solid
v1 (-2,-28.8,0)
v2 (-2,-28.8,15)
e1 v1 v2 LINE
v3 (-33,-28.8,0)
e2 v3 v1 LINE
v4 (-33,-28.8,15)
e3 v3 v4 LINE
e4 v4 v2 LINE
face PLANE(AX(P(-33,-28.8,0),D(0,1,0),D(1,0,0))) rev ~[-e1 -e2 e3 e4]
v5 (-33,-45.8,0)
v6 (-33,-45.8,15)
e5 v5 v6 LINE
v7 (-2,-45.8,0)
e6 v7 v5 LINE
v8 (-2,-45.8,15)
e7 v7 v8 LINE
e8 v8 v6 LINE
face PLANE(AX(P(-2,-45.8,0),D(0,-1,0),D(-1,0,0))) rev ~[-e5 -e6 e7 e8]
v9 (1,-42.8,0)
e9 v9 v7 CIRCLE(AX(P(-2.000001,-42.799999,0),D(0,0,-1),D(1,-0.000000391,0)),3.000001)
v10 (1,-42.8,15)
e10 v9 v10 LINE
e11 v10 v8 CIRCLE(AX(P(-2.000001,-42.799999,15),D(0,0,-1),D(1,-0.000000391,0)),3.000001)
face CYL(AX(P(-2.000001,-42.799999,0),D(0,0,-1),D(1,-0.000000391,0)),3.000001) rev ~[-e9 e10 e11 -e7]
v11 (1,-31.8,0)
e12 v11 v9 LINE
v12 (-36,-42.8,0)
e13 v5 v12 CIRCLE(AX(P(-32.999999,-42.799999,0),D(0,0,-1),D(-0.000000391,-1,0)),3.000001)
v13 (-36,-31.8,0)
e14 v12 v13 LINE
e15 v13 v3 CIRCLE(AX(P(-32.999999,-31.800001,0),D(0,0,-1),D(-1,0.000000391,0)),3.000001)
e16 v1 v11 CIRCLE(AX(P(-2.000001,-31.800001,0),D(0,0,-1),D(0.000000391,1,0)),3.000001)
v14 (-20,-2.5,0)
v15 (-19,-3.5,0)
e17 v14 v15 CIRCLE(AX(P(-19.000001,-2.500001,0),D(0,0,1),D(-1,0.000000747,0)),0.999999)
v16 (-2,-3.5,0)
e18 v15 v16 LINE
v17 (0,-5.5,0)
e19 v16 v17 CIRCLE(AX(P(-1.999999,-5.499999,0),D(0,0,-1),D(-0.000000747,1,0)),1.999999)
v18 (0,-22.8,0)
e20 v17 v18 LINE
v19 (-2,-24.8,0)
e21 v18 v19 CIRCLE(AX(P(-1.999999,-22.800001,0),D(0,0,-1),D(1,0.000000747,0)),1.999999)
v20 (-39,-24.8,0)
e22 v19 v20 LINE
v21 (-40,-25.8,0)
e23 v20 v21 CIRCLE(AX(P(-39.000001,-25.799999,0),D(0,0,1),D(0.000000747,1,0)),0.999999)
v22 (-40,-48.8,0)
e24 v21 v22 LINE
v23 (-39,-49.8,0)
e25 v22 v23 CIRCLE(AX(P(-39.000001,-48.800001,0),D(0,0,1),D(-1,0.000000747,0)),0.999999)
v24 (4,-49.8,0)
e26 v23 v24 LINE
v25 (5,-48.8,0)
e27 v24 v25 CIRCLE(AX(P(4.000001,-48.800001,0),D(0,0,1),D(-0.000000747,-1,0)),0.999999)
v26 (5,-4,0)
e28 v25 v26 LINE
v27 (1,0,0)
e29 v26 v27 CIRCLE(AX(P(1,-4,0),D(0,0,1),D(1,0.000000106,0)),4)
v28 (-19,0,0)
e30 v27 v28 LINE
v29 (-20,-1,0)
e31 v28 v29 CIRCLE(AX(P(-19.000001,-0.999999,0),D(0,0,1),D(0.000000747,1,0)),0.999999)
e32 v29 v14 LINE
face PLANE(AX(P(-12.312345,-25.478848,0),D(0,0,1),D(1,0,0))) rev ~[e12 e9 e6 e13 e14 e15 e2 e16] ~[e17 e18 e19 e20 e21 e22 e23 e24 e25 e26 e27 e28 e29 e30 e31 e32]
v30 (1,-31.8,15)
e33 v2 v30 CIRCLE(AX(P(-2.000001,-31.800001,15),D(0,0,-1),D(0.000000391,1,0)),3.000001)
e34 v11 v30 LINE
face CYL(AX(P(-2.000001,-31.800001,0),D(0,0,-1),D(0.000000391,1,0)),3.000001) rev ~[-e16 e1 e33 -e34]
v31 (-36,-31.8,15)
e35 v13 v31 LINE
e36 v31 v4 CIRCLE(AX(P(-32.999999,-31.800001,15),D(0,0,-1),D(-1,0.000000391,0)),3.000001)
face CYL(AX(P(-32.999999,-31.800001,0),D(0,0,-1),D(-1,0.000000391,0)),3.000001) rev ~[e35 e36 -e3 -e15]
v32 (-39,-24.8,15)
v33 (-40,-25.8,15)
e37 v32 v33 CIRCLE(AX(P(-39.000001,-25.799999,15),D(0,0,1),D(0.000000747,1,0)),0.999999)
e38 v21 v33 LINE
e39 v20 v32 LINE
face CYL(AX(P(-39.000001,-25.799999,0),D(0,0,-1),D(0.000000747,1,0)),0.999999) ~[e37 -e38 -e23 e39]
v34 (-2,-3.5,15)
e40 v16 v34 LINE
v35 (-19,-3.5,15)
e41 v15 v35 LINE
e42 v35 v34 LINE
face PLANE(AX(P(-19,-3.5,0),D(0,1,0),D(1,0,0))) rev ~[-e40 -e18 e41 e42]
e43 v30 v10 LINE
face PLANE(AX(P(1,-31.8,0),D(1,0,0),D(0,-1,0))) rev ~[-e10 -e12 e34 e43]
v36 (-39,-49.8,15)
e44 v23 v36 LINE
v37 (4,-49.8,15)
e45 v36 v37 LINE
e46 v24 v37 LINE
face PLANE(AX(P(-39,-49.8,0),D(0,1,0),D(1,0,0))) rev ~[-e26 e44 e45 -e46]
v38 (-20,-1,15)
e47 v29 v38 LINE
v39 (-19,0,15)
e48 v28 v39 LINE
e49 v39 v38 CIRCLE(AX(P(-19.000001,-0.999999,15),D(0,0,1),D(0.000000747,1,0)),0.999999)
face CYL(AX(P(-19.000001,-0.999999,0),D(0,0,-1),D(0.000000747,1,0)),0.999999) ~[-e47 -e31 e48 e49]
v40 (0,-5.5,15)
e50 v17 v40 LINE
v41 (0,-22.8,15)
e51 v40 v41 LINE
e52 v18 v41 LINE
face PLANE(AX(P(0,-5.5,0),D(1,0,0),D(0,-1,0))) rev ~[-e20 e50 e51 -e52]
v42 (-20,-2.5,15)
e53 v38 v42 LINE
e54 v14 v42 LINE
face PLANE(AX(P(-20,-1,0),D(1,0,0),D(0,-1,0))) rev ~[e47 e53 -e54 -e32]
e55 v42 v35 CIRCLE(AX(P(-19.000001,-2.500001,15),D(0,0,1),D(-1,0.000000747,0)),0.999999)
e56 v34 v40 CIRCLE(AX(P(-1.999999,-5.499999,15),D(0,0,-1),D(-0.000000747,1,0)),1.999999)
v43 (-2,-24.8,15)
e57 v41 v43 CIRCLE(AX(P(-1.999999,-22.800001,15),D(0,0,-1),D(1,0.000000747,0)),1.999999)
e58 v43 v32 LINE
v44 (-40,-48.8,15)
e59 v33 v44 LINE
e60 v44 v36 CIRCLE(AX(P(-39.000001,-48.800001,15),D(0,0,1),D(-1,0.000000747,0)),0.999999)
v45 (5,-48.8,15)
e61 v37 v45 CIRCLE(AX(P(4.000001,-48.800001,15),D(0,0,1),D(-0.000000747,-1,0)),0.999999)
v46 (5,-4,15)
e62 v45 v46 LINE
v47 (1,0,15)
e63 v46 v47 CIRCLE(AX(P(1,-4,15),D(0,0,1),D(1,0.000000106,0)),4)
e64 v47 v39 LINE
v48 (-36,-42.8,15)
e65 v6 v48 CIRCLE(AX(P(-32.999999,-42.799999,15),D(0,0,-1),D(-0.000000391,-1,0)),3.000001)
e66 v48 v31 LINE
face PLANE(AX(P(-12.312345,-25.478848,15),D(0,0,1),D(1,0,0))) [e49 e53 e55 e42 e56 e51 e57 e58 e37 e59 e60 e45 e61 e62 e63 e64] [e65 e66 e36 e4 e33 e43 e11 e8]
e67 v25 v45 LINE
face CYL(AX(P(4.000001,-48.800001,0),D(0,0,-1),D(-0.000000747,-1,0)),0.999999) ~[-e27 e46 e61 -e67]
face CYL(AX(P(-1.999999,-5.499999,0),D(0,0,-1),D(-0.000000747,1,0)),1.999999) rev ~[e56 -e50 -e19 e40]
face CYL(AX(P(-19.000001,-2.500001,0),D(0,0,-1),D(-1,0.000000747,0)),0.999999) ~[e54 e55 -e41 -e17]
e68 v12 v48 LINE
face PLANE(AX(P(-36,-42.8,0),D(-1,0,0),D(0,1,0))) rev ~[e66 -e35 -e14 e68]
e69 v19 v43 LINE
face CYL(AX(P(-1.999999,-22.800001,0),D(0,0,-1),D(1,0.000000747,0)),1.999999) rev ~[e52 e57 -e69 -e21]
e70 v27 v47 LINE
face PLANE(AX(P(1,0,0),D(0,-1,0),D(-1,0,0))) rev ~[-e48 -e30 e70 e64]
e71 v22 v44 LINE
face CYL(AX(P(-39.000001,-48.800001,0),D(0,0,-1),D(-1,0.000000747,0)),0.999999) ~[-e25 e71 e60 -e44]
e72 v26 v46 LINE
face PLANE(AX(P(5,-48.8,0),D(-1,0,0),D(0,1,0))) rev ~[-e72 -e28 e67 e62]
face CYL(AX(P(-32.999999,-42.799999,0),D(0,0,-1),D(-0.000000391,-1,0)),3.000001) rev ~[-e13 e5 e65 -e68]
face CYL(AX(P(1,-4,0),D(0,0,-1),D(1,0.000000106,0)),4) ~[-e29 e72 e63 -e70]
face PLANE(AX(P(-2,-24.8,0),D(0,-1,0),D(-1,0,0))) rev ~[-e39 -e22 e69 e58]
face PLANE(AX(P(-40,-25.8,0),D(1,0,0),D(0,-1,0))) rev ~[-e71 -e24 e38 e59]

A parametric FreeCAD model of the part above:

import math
import FreeCAD as App
import Part
import Sketcher

doc = App.newDocument("Part")
params = doc.addObject("Spreadsheet::Sheet", "Params")
for row, (alias, value) in enumerate([
    ("sketch1_radius", "0.999999 mm"),
    ("sketch1_radius2", "1.999999 mm"),
    ("sketch1_radius3", "4 mm"),
    ("sketch1_radius4", "3.000001 mm"),
    ("sketch1_width", "20 mm"),
    ("pad1_length", "15 mm"),
], start=1):
    params.set(f"A{row}", alias)
    params.set(f"B{row}", "=" + value)
    params.setAlias(f"B{row}", alias)

body = doc.addObject("PartDesign::Body", "Body")

sketch1 = body.newObject("Sketcher::SketchObject", "Sketch")
sketch1.AttachmentSupport = (doc.getObject("XY_Plane"), [""])
sketch1.MapMode = "FlatFace"
sketch1.addGeometry([
    Part.LineSegment(App.Vector(1, 0, 0), App.Vector(-19, 0, 0)),
    Part.ArcOfCircle(Part.Circle(App.Vector(-19.000001, -0.999999, 0), App.Vector(0, 0, 1), 0.999999), math.radians(89.999957), math.radians(180.000043)),
    Part.LineSegment(App.Vector(-20, -1, 0), App.Vector(-20, -2.5, 0)),
    Part.ArcOfCircle(Part.Circle(App.Vector(-19.000001, -2.500001, 0), App.Vector(0, 0, 1), 0.999999), math.radians(179.999957), math.radians(270.000043)),
    Part.LineSegment(App.Vector(-19, -3.5, 0), App.Vector(-2, -3.5, 0)),
    Part.ArcOfCircle(Part.Circle(App.Vector(-1.999999, -5.499999, 0), App.Vector(0, 0, 1), 1.999999), math.radians(-0.000043), math.radians(90.000043)),
    Part.LineSegment(App.Vector(0, -5.5, 0), App.Vector(0, -22.8, 0)),
    Part.ArcOfCircle(Part.Circle(App.Vector(-1.999999, -22.800001, 0), App.Vector(0, 0, 1), 1.999999), math.radians(-90.000043), math.radians(0.000043)),
    Part.LineSegment(App.Vector(-2, -24.8, 0), App.Vector(-39, -24.8, 0)),
    Part.ArcOfCircle(Part.Circle(App.Vector(-39.000001, -25.799999, 0), App.Vector(0, 0, 1), 0.999999), math.radians(89.999957), math.radians(180.000043)),
    Part.LineSegment(App.Vector(-40, -25.8, 0), App.Vector(-40, -48.8, 0)),
    Part.ArcOfCircle(Part.Circle(App.Vector(-39.000001, -48.800001, 0), App.Vector(0, 0, 1), 0.999999), math.radians(179.999957), math.radians(270.000043)),
    Part.LineSegment(App.Vector(-39, -49.8, 0), App.Vector(4, -49.8, 0)),
    Part.ArcOfCircle(Part.Circle(App.Vector(4.000001, -48.800001, 0), App.Vector(0, 0, 1), 0.999999), math.radians(-90.000043), math.radians(0.000043)),
    Part.LineSegment(App.Vector(5, -48.8, 0), App.Vector(5, -4, 0)),
    Part.ArcOfCircle(Part.Circle(App.Vector(1, -4, 0), App.Vector(0, 0, 1), 4), math.radians(0.000006), math.radians(89.999994)),
    Part.LineSegment(App.Vector(-36, -42.8, 0), App.Vector(-36, -31.8, 0)),
    Part.ArcOfCircle(Part.Circle(App.Vector(-32.999999, -31.800001, 0), App.Vector(0, 0, 1), 3.000001), math.radians(90.000022), math.radians(179.999978)),
    Part.LineSegment(App.Vector(-33, -28.8, 0), App.Vector(-2, -28.8, 0)),
    Part.ArcOfCircle(Part.Circle(App.Vector(-2.000001, -31.800001, 0), App.Vector(0, 0, 1), 3.000001), math.radians(0.000022), math.radians(89.999978)),
    Part.LineSegment(App.Vector(1, -31.8, 0), App.Vector(1, -42.8, 0)),
    Part.ArcOfCircle(Part.Circle(App.Vector(-2.000001, -42.799999, 0), App.Vector(0, 0, 1), 3.000001), math.radians(-89.999978), math.radians(-0.000022)),
    Part.LineSegment(App.Vector(-2, -45.8, 0), App.Vector(-33, -45.8, 0)),
    Part.ArcOfCircle(Part.Circle(App.Vector(-32.999999, -42.799999, 0), App.Vector(0, 0, 1), 3.000001), math.radians(-179.999978), math.radians(-90.000022)),
], False)
sketch1.addConstraint([
    Sketcher.Constraint("Tangent", 0, 2, 1, 1),
    Sketcher.Constraint("Tangent", 1, 2, 2, 1),
    Sketcher.Constraint("Tangent", 2, 2, 3, 1),
    Sketcher.Constraint("Tangent", 3, 2, 4, 1),
    Sketcher.Constraint("Tangent", 4, 2, 5, 2),
    Sketcher.Constraint("Tangent", 5, 1, 6, 1),
    Sketcher.Constraint("Tangent", 6, 2, 7, 2),
    Sketcher.Constraint("Tangent", 7, 1, 8, 1),
    Sketcher.Constraint("Tangent", 8, 2, 9, 1),
    Sketcher.Constraint("Tangent", 9, 2, 10, 1),
    Sketcher.Constraint("Tangent", 10, 2, 11, 1),
    Sketcher.Constraint("Tangent", 11, 2, 12, 1),
    Sketcher.Constraint("Tangent", 12, 2, 13, 1),
    Sketcher.Constraint("Tangent", 13, 2, 14, 1),
    Sketcher.Constraint("Tangent", 14, 2, 15, 1),
    Sketcher.Constraint("Tangent", 15, 2, 0, 1),
    Sketcher.Constraint("Tangent", 16, 2, 17, 2),
    Sketcher.Constraint("Tangent", 17, 1, 18, 1),
    Sketcher.Constraint("Tangent", 18, 2, 19, 2),
    Sketcher.Constraint("Tangent", 19, 1, 20, 1),
    Sketcher.Constraint("Tangent", 20, 2, 21, 2),
    Sketcher.Constraint("Tangent", 21, 1, 22, 1),
    Sketcher.Constraint("Tangent", 22, 2, 23, 2),
    Sketcher.Constraint("Tangent", 23, 1, 16, 1),
    Sketcher.Constraint("Horizontal", 0),
    Sketcher.Constraint("Vertical", 2),
    Sketcher.Constraint("Horizontal", 4),
    Sketcher.Constraint("Vertical", 6),
    Sketcher.Constraint("Horizontal", 8),
    Sketcher.Constraint("Vertical", 10),
    Sketcher.Constraint("Horizontal", 12),
    Sketcher.Constraint("Vertical", 14),
    Sketcher.Constraint("Vertical", 16),
    Sketcher.Constraint("Horizontal", 18),
    Sketcher.Constraint("Vertical", 20),
    Sketcher.Constraint("Horizontal", 22),
    Sketcher.Constraint("Equal", 1, 3),
    Sketcher.Constraint("Equal", 5, 7),
    Sketcher.Constraint("Equal", 3, 9),
    Sketcher.Constraint("Equal", 9, 11),
    Sketcher.Constraint("Equal", 11, 13),
    Sketcher.Constraint("Equal", 17, 19),
    Sketcher.Constraint("Equal", 19, 21),
    Sketcher.Constraint("Equal", 21, 23),
    Sketcher.Constraint("PointOnObject", 0, 2, -1),
    Sketcher.Constraint("PointOnObject", 5, 1, -2),
    Sketcher.Constraint("Vertical", 21, 3, 4, 2),
    Sketcher.Constraint("Vertical", 15, 2, 19, 1),
    Sketcher.Constraint("Radius", 1, 0.999999),
    Sketcher.Constraint("Radius", 5, 1.999999),
    Sketcher.Constraint("Radius", 15, 4.0),
    Sketcher.Constraint("Radius", 17, 3.000001),
    Sketcher.Constraint("DistanceX", 0, 2, 0, 1, 20.0),
    Sketcher.Constraint("DistanceX", 8, 2, 8, 1, 37.0),
    Sketcher.Constraint("DistanceX", 18, 1, 18, 2, 31.0),
    Sketcher.Constraint("DistanceY", 10, 2, 10, 1, 23.0),
    Sketcher.Constraint("DistanceY", 16, 1, 16, 2, 11.0),
    Sketcher.Constraint("DistanceY", 2, 2, 2, 1, 1.5),
    Sketcher.Constraint("DistanceY", 6, 2, 6, 1, 17.3),
    Sketcher.Constraint("DistanceY", 17, 3, 9, 3, 6.000002),
])
sketch1.setExpression("Constraints[48]", "Params.sketch1_radius")
sketch1.setExpression("Constraints[49]", "Params.sketch1_radius2")
sketch1.setExpression("Constraints[50]", "Params.sketch1_radius3")
sketch1.setExpression("Constraints[51]", "Params.sketch1_radius4")
sketch1.setExpression("Constraints[52]", "Params.sketch1_width")
pad1 = body.newObject("PartDesign::Pad", "Pad")
pad1.Profile = sketch1
pad1.setExpression("Length", "Params.pad1_length")

doc.recompute()
